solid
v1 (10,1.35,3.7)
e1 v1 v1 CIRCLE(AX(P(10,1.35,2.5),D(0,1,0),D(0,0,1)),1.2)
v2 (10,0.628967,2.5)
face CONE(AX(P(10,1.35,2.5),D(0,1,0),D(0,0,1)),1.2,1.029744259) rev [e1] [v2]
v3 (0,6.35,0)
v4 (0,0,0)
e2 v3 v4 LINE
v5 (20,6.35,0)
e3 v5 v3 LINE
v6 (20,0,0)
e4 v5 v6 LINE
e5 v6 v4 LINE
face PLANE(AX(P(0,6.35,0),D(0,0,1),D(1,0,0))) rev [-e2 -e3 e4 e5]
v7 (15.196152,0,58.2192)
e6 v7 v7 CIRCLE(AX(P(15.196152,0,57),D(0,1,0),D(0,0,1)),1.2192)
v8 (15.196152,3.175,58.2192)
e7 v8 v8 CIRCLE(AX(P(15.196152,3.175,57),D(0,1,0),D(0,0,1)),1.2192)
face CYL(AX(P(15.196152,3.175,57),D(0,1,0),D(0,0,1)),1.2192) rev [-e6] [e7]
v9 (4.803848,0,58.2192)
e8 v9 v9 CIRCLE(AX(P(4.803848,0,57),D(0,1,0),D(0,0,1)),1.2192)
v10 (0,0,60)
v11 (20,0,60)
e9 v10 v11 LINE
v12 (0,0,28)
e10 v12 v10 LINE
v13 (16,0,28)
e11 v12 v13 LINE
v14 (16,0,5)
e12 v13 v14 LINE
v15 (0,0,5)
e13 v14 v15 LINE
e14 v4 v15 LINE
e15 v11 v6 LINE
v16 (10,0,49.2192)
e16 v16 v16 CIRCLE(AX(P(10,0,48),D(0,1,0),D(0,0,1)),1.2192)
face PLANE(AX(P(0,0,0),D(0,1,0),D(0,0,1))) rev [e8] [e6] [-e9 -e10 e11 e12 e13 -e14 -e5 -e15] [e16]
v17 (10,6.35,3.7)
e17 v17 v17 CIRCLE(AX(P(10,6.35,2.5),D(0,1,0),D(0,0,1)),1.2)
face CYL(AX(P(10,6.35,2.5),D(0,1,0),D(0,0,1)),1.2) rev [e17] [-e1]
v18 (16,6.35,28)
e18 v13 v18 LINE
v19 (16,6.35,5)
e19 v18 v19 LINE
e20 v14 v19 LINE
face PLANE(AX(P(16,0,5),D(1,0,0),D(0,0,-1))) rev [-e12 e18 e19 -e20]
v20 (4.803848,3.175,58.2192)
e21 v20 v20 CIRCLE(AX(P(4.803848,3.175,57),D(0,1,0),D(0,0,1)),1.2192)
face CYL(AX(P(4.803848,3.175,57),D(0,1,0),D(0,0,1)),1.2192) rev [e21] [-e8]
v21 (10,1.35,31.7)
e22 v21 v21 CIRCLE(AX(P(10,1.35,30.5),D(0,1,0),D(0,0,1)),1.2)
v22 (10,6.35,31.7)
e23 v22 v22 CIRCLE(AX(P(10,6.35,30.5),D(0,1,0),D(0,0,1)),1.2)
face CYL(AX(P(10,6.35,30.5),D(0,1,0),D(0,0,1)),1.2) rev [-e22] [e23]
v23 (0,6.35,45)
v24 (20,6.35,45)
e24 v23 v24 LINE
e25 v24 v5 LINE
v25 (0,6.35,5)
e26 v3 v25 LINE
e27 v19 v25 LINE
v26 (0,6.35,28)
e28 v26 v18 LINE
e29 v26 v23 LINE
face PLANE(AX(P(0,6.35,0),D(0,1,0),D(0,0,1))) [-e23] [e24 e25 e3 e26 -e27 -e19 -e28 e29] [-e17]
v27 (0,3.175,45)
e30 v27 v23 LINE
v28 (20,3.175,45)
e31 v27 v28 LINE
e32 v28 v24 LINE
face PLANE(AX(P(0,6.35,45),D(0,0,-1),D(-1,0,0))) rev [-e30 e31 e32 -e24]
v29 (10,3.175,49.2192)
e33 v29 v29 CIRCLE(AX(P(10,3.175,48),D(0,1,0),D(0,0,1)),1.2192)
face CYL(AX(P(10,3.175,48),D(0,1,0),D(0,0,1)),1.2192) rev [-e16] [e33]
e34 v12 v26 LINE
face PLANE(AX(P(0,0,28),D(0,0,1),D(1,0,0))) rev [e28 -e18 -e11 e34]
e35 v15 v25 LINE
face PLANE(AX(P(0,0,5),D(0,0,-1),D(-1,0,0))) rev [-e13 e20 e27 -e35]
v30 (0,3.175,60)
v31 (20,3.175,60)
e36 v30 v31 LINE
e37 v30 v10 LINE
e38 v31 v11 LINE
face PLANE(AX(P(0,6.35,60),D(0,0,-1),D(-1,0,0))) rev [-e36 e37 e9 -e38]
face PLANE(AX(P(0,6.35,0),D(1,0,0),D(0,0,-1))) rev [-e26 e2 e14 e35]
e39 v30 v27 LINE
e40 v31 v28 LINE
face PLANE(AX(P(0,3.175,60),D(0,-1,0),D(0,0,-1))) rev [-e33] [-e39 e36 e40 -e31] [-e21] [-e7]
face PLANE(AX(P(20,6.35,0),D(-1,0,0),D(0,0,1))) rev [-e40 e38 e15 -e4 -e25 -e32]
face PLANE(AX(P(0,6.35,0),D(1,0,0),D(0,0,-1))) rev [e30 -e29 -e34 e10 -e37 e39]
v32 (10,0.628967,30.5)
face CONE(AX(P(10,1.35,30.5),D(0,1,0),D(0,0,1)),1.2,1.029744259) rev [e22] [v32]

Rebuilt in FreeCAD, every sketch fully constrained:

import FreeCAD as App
import Part
import Sketcher

V = App.Vector
Q = App.Units.Quantity


def add_polygon(sketch, points):
    """Adds a closed chain of lines whose ends are joined by coincident constraints."""
    first, n = sketch.GeometryCount, len(points)
    for a, b in zip(points, points[1:] + points[:1]):
        sketch.addGeometry(Part.LineSegment(App.Vector(*a, 0), App.Vector(*b, 0)), False)
    for i in range(n):
        sketch.addConstraint(Sketcher.Constraint("Coincident", first + i, 2, first + (i + 1) % n, 1))

doc = App.newDocument("Part")
body = doc.addObject("PartDesign::Body", "Body")

# Sketch on XZ plane
sketch1 = body.newObject("Sketcher::SketchObject", "Sketch")
sketch1.AttachmentSupport = (doc.getObject("XZ_Plane"), [""])
sketch1.MapMode = "FlatFace"
add_polygon(sketch1, [(0, 0), (0, 60), (20, 60), (20, 0)])  # lines 0-3
sketch1.addConstraint([
    Sketcher.Constraint("Vertical", 0),
    Sketcher.Constraint("Horizontal", 1),
    Sketcher.Constraint("Vertical", 2),
    Sketcher.Constraint("Horizontal", 3),
    Sketcher.Constraint("Coincident", 3, 2, -1, 1),
    Sketcher.Constraint("DistanceX", 1, 1, 1, 2, Q("20 mm")),
    Sketcher.Constraint("DistanceY", 0, 1, 0, 2, Q("60 mm")),
])
pad1 = body.newObject("PartDesign::Pad", "Pad")
pad1.Profile = sketch1
pad1.Length = 6.35
pad1.Reversed = True

# Sketch on XZ plane
sketch2 = body.newObject("Sketcher::SketchObject", "Sketch001")
sketch2.AttachmentSupport = (doc.getObject("XZ_Plane"), [""])
sketch2.MapMode = "FlatFace"
sketch2.AttachmentOffset = App.Placement(V(0, 0, -6.35), App.Rotation())
add_polygon(sketch2, [(0, 5), (0, 28), (16, 28), (16, 5)])  # lines 0-3
sketch2.addConstraint([
    Sketcher.Constraint("Vertical", 0),
    Sketcher.Constraint("Horizontal", 1),
    Sketcher.Constraint("Vertical", 2),
    Sketcher.Constraint("Horizontal", 3),
    Sketcher.Constraint("PointOnObject", 0, 2, -2),
    Sketcher.Constraint("DistanceX", 1, 1, 1, 2, Q("16 mm")),
    Sketcher.Constraint("DistanceY", 0, 1, 0, 2, Q("23 mm")),
    Sketcher.Constraint("DistanceY", -1, 1, 0, 2, Q("28 mm")),
])
pocket1 = body.newObject("PartDesign::Pocket", "Pocket")
pocket1.Profile = sketch2
pocket1.Type = "ThroughAll"
pocket1.Reversed = True

# Sketch on XZ plane
sketch3 = body.newObject("Sketcher::SketchObject", "Sketch002")
sketch3.AttachmentSupport = (doc.getObject("XZ_Plane"), [""])
sketch3.MapMode = "FlatFace"
sketch3.AttachmentOffset = App.Placement(V(0, 0, -6.35), App.Rotation())
sketch3.addGeometry([
    Part.Circle(V(10, 30.5, 0), V(0, 0, 1), 1.2),
    Part.Circle(V(10, 2.5, 0), V(0, 0, 1), 1.2),
], False)
sketch3.addConstraint([
    Sketcher.Constraint("Equal", 0, 1),
    Sketcher.Constraint("Vertical", 0, 3, 1, 3),
    Sketcher.Constraint("Diameter", 0, Q("2.4 mm")),
    Sketcher.Constraint("DistanceX", -1, 1, 0, 3, Q("10 mm")),
    Sketcher.Constraint("DistanceY", 1, 3, 0, 3, Q("28 mm")),
    Sketcher.Constraint("DistanceY", -1, 1, 0, 3, Q("30.5 mm")),
])
doc.recompute()
hole = body.newObject("PartDesign::Hole", "Hole")
hole.Profile = sketch3
hole.ThreadType = "None"
hole.Diameter = 2.4
hole.DepthType = "Dimension"
hole.Depth = 5
hole.DrillPoint = "Angled"
hole.DrillPointAngle = 118
hole.Reversed = True

# Sketch on YZ plane
sketch4 = body.newObject("Sketcher::SketchObject", "Sketch003")
sketch4.AttachmentSupport = (doc.getObject("YZ_Plane"), [""])
sketch4.MapMode = "FlatFace"
sketch4.AttachmentOffset = App.Placement(V(0, 0, 20), App.Rotation())
add_polygon(sketch4, [(6.3, 60), (3.2, 60), (3.2, 45), (6.3, 45)])  # lines 0-3
sketch4.addConstraint([
    Sketcher.Constraint("Horizontal", 0),
    Sketcher.Constraint("Vertical", 1),
    Sketcher.Constraint("Horizontal", 2),
    Sketcher.Constraint("Vertical", 3),
    Sketcher.Constraint("DistanceY", 1, 2, 1, 1, Q("15 mm")),
    Sketcher.Constraint("DistanceY", -1, 1, 0, 2, Q("60 mm")),
    Sketcher.Constraint("DistanceX", 0, 2, 0, 1, Q("3.175 mm")),
    Sketcher.Constraint("DistanceX", -1, 1, 2, 2, Q("6.35 mm")),
])
pocket2 = body.newObject("PartDesign::Pocket", "Pocket001")
pocket2.Profile = sketch4
pocket2.Type = "ThroughAll"

# Sketch on XZ plane
sketch5 = body.newObject("Sketcher::SketchObject", "Sketch004")
sketch5.AttachmentSupport = (doc.getObject("XZ_Plane"), [""])
sketch5.MapMode = "FlatFace"
sketch5.AttachmentOffset = App.Placement(V(0, 0, -3.175), App.Rotation())
sketch5.addGeometry([
    Part.Circle(V(10, 48, 0), V(0, 0, 1), 1.2),
    Part.Circle(V(4.8, 57, 0), V(0, 0, 1), 1.2),
    Part.Circle(V(15.2, 57, 0), V(0, 0, 1), 1.2),
], False)
sketch5.addConstraint([
    Sketcher.Constraint("Equal", 0, 1),
    Sketcher.Constraint("Equal", 1, 2),
    Sketcher.Constraint("Horizontal", 1, 3, 2, 3),
    Sketcher.Constraint("DistanceX", -1, 1, 0, 3, Q("10 mm")),
    Sketcher.Constraint("DistanceY", -1, 1, 0, 3, Q("48 mm")),
    Sketcher.Constraint("DistanceY", -1, 1, 1, 3, Q("57 mm")),
    Sketcher.Constraint("Diameter", 0, Q("2.4384 mm")),
    Sketcher.Constraint("DistanceX", -1, 1, 1, 3, Q("4.803848 mm")),
    Sketcher.Constraint("DistanceX", -1, 1, 2, 3, Q("15.196152 mm")),
])
doc.recompute()
hole2 = body.newObject("PartDesign::Hole", "Hole001")
hole2.Profile = sketch5
hole2.ThreadType = "None"
hole2.Diameter = 2.4384
hole2.DepthType = "ThroughAll"
hole2.Reversed = True

doc.recompute()
